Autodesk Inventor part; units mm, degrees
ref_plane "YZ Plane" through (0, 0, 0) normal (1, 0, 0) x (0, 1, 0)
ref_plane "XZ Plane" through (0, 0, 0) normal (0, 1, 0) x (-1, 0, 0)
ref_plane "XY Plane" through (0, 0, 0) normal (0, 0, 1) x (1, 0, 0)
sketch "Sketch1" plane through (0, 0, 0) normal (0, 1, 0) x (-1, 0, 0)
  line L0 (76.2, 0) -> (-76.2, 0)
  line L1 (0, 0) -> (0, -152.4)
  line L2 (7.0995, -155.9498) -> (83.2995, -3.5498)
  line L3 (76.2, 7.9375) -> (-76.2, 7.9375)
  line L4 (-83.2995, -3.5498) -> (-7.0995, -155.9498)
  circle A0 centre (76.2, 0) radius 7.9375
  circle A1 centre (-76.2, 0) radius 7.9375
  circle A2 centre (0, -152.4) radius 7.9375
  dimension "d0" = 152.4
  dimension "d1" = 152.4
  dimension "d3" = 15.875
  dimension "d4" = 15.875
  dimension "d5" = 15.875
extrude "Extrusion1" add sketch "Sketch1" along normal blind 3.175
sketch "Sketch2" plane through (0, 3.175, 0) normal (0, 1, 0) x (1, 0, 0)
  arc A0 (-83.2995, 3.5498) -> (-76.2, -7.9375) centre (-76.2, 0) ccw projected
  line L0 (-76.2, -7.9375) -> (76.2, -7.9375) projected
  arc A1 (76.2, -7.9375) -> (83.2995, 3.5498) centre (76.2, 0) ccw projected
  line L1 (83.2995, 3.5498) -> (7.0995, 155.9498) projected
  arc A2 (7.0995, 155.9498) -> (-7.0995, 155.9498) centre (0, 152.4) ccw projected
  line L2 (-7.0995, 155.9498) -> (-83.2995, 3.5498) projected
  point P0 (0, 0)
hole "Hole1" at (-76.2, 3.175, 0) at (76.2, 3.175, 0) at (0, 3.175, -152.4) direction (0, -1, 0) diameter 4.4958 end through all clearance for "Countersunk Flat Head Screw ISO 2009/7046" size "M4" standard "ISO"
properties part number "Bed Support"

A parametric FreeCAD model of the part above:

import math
import FreeCAD as App
import Part
import Sketcher

V = App.Vector
Q = App.Units.Quantity

doc = App.newDocument("Part")
body = doc.addObject("PartDesign::Body", "Body")

# Sketch on XZ plane
sketch1 = body.newObject("Sketcher::SketchObject", "Sketch")
sketch1.AttachmentSupport = (doc.getObject("XZ_Plane"), [""])
sketch1.MapMode = "FlatFace"
sketch1.addGeometry([
    Part.LineSegment(V(83, -4, 0), V(7, -156, 0)),  # 0
    Part.ArcOfCircle(Part.Circle(V(0, -152, 0), V(0, 0, 1), 8), math.radians(-153), math.radians(-27)),  # 1
    Part.LineSegment(V(-7, -156, 0), V(-83, -4, 0)),  # 2
    Part.ArcOfCircle(Part.Circle(V(-76, 0, 0), V(0, 0, 1), 8), math.radians(90), math.radians(207)),  # 3
    Part.LineSegment(V(-76, 8, 0), V(76, 8, 0)),  # 4
    Part.ArcOfCircle(Part.Circle(V(76, 0, 0), V(0, 0, 1), 8), math.radians(-27), math.radians(90)),  # 5
], False)
sketch1.addConstraint([
    Sketcher.Constraint("Tangent", 0, 2, 1, 2),
    Sketcher.Constraint("Tangent", 1, 1, 2, 1),
    Sketcher.Constraint("Tangent", 2, 2, 3, 2),
    Sketcher.Constraint("Tangent", 3, 1, 4, 1),
    Sketcher.Constraint("Tangent", 4, 2, 5, 2),
    Sketcher.Constraint("Tangent", 5, 1, 0, 1),
    Sketcher.Constraint("Horizontal", 4),
    Sketcher.Constraint("Equal", 1, 3),
    Sketcher.Constraint("Equal", 3, 5),
    Sketcher.Constraint("Symmetric", 3, 3, 5, 3, -1, 1),
    Sketcher.Constraint("PointOnObject", 1, 3, -2),
    Sketcher.Constraint("DistanceX", 4, 1, 4, 2, Q("6 in")),
    Sketcher.Constraint("DistanceY", 1, 3, -1, 1, Q("6 in")),
    Sketcher.Constraint("Radius", 1, Q("0.3125 in")),
])
pad1 = body.newObject("PartDesign::Pad", "Pad")
pad1.Profile = sketch1
pad1.Length = Q("0.125 in")
pad1.Reversed = True

# Sketch on XZ plane
sketch2 = body.newObject("Sketcher::SketchObject", "Sketch001")
sketch2.AttachmentSupport = (doc.getObject("XZ_Plane"), [""])
sketch2.MapMode = "FlatFace"
sketch2.AttachmentOffset = App.Placement(V(0, 0, -0.125 * 25.4), App.Rotation())
sketch2.addGeometry([
    Part.Circle(V(-76.2, 0, 0), V(0, 0, 1), 2.2),
    Part.Circle(V(76.2, 0, 0), V(0, 0, 1), 2.2),
    Part.Circle(V(0, -152.4, 0), V(0, 0, 1), 2.2),
], False)
sketch2.addConstraint([
    Sketcher.Constraint("Equal", 0, 1),
    Sketcher.Constraint("Equal", 1, 2),
    Sketcher.Constraint("Symmetric", 0, 3, 1, 3, -1, 1),
    Sketcher.Constraint("PointOnObject", 0, 3, -1),
    Sketcher.Constraint("PointOnObject", 2, 3, -2),
    Sketcher.Constraint("Diameter", 0, Q("0.177 in")),
    Sketcher.Constraint("DistanceX", 0, 3, -1, 1, Q("3 in")),
    Sketcher.Constraint("DistanceY", 2, 3, -1, 1, Q("6 in")),
])
doc.recompute()
hole = body.newObject("PartDesign::Hole", "Hole")
hole.Profile = sketch2
hole.ThreadType = "None"
hole.Diameter = Q("0.177 in")
hole.DepthType = "ThroughAll"
hole.Reversed = True

doc.recompute()
